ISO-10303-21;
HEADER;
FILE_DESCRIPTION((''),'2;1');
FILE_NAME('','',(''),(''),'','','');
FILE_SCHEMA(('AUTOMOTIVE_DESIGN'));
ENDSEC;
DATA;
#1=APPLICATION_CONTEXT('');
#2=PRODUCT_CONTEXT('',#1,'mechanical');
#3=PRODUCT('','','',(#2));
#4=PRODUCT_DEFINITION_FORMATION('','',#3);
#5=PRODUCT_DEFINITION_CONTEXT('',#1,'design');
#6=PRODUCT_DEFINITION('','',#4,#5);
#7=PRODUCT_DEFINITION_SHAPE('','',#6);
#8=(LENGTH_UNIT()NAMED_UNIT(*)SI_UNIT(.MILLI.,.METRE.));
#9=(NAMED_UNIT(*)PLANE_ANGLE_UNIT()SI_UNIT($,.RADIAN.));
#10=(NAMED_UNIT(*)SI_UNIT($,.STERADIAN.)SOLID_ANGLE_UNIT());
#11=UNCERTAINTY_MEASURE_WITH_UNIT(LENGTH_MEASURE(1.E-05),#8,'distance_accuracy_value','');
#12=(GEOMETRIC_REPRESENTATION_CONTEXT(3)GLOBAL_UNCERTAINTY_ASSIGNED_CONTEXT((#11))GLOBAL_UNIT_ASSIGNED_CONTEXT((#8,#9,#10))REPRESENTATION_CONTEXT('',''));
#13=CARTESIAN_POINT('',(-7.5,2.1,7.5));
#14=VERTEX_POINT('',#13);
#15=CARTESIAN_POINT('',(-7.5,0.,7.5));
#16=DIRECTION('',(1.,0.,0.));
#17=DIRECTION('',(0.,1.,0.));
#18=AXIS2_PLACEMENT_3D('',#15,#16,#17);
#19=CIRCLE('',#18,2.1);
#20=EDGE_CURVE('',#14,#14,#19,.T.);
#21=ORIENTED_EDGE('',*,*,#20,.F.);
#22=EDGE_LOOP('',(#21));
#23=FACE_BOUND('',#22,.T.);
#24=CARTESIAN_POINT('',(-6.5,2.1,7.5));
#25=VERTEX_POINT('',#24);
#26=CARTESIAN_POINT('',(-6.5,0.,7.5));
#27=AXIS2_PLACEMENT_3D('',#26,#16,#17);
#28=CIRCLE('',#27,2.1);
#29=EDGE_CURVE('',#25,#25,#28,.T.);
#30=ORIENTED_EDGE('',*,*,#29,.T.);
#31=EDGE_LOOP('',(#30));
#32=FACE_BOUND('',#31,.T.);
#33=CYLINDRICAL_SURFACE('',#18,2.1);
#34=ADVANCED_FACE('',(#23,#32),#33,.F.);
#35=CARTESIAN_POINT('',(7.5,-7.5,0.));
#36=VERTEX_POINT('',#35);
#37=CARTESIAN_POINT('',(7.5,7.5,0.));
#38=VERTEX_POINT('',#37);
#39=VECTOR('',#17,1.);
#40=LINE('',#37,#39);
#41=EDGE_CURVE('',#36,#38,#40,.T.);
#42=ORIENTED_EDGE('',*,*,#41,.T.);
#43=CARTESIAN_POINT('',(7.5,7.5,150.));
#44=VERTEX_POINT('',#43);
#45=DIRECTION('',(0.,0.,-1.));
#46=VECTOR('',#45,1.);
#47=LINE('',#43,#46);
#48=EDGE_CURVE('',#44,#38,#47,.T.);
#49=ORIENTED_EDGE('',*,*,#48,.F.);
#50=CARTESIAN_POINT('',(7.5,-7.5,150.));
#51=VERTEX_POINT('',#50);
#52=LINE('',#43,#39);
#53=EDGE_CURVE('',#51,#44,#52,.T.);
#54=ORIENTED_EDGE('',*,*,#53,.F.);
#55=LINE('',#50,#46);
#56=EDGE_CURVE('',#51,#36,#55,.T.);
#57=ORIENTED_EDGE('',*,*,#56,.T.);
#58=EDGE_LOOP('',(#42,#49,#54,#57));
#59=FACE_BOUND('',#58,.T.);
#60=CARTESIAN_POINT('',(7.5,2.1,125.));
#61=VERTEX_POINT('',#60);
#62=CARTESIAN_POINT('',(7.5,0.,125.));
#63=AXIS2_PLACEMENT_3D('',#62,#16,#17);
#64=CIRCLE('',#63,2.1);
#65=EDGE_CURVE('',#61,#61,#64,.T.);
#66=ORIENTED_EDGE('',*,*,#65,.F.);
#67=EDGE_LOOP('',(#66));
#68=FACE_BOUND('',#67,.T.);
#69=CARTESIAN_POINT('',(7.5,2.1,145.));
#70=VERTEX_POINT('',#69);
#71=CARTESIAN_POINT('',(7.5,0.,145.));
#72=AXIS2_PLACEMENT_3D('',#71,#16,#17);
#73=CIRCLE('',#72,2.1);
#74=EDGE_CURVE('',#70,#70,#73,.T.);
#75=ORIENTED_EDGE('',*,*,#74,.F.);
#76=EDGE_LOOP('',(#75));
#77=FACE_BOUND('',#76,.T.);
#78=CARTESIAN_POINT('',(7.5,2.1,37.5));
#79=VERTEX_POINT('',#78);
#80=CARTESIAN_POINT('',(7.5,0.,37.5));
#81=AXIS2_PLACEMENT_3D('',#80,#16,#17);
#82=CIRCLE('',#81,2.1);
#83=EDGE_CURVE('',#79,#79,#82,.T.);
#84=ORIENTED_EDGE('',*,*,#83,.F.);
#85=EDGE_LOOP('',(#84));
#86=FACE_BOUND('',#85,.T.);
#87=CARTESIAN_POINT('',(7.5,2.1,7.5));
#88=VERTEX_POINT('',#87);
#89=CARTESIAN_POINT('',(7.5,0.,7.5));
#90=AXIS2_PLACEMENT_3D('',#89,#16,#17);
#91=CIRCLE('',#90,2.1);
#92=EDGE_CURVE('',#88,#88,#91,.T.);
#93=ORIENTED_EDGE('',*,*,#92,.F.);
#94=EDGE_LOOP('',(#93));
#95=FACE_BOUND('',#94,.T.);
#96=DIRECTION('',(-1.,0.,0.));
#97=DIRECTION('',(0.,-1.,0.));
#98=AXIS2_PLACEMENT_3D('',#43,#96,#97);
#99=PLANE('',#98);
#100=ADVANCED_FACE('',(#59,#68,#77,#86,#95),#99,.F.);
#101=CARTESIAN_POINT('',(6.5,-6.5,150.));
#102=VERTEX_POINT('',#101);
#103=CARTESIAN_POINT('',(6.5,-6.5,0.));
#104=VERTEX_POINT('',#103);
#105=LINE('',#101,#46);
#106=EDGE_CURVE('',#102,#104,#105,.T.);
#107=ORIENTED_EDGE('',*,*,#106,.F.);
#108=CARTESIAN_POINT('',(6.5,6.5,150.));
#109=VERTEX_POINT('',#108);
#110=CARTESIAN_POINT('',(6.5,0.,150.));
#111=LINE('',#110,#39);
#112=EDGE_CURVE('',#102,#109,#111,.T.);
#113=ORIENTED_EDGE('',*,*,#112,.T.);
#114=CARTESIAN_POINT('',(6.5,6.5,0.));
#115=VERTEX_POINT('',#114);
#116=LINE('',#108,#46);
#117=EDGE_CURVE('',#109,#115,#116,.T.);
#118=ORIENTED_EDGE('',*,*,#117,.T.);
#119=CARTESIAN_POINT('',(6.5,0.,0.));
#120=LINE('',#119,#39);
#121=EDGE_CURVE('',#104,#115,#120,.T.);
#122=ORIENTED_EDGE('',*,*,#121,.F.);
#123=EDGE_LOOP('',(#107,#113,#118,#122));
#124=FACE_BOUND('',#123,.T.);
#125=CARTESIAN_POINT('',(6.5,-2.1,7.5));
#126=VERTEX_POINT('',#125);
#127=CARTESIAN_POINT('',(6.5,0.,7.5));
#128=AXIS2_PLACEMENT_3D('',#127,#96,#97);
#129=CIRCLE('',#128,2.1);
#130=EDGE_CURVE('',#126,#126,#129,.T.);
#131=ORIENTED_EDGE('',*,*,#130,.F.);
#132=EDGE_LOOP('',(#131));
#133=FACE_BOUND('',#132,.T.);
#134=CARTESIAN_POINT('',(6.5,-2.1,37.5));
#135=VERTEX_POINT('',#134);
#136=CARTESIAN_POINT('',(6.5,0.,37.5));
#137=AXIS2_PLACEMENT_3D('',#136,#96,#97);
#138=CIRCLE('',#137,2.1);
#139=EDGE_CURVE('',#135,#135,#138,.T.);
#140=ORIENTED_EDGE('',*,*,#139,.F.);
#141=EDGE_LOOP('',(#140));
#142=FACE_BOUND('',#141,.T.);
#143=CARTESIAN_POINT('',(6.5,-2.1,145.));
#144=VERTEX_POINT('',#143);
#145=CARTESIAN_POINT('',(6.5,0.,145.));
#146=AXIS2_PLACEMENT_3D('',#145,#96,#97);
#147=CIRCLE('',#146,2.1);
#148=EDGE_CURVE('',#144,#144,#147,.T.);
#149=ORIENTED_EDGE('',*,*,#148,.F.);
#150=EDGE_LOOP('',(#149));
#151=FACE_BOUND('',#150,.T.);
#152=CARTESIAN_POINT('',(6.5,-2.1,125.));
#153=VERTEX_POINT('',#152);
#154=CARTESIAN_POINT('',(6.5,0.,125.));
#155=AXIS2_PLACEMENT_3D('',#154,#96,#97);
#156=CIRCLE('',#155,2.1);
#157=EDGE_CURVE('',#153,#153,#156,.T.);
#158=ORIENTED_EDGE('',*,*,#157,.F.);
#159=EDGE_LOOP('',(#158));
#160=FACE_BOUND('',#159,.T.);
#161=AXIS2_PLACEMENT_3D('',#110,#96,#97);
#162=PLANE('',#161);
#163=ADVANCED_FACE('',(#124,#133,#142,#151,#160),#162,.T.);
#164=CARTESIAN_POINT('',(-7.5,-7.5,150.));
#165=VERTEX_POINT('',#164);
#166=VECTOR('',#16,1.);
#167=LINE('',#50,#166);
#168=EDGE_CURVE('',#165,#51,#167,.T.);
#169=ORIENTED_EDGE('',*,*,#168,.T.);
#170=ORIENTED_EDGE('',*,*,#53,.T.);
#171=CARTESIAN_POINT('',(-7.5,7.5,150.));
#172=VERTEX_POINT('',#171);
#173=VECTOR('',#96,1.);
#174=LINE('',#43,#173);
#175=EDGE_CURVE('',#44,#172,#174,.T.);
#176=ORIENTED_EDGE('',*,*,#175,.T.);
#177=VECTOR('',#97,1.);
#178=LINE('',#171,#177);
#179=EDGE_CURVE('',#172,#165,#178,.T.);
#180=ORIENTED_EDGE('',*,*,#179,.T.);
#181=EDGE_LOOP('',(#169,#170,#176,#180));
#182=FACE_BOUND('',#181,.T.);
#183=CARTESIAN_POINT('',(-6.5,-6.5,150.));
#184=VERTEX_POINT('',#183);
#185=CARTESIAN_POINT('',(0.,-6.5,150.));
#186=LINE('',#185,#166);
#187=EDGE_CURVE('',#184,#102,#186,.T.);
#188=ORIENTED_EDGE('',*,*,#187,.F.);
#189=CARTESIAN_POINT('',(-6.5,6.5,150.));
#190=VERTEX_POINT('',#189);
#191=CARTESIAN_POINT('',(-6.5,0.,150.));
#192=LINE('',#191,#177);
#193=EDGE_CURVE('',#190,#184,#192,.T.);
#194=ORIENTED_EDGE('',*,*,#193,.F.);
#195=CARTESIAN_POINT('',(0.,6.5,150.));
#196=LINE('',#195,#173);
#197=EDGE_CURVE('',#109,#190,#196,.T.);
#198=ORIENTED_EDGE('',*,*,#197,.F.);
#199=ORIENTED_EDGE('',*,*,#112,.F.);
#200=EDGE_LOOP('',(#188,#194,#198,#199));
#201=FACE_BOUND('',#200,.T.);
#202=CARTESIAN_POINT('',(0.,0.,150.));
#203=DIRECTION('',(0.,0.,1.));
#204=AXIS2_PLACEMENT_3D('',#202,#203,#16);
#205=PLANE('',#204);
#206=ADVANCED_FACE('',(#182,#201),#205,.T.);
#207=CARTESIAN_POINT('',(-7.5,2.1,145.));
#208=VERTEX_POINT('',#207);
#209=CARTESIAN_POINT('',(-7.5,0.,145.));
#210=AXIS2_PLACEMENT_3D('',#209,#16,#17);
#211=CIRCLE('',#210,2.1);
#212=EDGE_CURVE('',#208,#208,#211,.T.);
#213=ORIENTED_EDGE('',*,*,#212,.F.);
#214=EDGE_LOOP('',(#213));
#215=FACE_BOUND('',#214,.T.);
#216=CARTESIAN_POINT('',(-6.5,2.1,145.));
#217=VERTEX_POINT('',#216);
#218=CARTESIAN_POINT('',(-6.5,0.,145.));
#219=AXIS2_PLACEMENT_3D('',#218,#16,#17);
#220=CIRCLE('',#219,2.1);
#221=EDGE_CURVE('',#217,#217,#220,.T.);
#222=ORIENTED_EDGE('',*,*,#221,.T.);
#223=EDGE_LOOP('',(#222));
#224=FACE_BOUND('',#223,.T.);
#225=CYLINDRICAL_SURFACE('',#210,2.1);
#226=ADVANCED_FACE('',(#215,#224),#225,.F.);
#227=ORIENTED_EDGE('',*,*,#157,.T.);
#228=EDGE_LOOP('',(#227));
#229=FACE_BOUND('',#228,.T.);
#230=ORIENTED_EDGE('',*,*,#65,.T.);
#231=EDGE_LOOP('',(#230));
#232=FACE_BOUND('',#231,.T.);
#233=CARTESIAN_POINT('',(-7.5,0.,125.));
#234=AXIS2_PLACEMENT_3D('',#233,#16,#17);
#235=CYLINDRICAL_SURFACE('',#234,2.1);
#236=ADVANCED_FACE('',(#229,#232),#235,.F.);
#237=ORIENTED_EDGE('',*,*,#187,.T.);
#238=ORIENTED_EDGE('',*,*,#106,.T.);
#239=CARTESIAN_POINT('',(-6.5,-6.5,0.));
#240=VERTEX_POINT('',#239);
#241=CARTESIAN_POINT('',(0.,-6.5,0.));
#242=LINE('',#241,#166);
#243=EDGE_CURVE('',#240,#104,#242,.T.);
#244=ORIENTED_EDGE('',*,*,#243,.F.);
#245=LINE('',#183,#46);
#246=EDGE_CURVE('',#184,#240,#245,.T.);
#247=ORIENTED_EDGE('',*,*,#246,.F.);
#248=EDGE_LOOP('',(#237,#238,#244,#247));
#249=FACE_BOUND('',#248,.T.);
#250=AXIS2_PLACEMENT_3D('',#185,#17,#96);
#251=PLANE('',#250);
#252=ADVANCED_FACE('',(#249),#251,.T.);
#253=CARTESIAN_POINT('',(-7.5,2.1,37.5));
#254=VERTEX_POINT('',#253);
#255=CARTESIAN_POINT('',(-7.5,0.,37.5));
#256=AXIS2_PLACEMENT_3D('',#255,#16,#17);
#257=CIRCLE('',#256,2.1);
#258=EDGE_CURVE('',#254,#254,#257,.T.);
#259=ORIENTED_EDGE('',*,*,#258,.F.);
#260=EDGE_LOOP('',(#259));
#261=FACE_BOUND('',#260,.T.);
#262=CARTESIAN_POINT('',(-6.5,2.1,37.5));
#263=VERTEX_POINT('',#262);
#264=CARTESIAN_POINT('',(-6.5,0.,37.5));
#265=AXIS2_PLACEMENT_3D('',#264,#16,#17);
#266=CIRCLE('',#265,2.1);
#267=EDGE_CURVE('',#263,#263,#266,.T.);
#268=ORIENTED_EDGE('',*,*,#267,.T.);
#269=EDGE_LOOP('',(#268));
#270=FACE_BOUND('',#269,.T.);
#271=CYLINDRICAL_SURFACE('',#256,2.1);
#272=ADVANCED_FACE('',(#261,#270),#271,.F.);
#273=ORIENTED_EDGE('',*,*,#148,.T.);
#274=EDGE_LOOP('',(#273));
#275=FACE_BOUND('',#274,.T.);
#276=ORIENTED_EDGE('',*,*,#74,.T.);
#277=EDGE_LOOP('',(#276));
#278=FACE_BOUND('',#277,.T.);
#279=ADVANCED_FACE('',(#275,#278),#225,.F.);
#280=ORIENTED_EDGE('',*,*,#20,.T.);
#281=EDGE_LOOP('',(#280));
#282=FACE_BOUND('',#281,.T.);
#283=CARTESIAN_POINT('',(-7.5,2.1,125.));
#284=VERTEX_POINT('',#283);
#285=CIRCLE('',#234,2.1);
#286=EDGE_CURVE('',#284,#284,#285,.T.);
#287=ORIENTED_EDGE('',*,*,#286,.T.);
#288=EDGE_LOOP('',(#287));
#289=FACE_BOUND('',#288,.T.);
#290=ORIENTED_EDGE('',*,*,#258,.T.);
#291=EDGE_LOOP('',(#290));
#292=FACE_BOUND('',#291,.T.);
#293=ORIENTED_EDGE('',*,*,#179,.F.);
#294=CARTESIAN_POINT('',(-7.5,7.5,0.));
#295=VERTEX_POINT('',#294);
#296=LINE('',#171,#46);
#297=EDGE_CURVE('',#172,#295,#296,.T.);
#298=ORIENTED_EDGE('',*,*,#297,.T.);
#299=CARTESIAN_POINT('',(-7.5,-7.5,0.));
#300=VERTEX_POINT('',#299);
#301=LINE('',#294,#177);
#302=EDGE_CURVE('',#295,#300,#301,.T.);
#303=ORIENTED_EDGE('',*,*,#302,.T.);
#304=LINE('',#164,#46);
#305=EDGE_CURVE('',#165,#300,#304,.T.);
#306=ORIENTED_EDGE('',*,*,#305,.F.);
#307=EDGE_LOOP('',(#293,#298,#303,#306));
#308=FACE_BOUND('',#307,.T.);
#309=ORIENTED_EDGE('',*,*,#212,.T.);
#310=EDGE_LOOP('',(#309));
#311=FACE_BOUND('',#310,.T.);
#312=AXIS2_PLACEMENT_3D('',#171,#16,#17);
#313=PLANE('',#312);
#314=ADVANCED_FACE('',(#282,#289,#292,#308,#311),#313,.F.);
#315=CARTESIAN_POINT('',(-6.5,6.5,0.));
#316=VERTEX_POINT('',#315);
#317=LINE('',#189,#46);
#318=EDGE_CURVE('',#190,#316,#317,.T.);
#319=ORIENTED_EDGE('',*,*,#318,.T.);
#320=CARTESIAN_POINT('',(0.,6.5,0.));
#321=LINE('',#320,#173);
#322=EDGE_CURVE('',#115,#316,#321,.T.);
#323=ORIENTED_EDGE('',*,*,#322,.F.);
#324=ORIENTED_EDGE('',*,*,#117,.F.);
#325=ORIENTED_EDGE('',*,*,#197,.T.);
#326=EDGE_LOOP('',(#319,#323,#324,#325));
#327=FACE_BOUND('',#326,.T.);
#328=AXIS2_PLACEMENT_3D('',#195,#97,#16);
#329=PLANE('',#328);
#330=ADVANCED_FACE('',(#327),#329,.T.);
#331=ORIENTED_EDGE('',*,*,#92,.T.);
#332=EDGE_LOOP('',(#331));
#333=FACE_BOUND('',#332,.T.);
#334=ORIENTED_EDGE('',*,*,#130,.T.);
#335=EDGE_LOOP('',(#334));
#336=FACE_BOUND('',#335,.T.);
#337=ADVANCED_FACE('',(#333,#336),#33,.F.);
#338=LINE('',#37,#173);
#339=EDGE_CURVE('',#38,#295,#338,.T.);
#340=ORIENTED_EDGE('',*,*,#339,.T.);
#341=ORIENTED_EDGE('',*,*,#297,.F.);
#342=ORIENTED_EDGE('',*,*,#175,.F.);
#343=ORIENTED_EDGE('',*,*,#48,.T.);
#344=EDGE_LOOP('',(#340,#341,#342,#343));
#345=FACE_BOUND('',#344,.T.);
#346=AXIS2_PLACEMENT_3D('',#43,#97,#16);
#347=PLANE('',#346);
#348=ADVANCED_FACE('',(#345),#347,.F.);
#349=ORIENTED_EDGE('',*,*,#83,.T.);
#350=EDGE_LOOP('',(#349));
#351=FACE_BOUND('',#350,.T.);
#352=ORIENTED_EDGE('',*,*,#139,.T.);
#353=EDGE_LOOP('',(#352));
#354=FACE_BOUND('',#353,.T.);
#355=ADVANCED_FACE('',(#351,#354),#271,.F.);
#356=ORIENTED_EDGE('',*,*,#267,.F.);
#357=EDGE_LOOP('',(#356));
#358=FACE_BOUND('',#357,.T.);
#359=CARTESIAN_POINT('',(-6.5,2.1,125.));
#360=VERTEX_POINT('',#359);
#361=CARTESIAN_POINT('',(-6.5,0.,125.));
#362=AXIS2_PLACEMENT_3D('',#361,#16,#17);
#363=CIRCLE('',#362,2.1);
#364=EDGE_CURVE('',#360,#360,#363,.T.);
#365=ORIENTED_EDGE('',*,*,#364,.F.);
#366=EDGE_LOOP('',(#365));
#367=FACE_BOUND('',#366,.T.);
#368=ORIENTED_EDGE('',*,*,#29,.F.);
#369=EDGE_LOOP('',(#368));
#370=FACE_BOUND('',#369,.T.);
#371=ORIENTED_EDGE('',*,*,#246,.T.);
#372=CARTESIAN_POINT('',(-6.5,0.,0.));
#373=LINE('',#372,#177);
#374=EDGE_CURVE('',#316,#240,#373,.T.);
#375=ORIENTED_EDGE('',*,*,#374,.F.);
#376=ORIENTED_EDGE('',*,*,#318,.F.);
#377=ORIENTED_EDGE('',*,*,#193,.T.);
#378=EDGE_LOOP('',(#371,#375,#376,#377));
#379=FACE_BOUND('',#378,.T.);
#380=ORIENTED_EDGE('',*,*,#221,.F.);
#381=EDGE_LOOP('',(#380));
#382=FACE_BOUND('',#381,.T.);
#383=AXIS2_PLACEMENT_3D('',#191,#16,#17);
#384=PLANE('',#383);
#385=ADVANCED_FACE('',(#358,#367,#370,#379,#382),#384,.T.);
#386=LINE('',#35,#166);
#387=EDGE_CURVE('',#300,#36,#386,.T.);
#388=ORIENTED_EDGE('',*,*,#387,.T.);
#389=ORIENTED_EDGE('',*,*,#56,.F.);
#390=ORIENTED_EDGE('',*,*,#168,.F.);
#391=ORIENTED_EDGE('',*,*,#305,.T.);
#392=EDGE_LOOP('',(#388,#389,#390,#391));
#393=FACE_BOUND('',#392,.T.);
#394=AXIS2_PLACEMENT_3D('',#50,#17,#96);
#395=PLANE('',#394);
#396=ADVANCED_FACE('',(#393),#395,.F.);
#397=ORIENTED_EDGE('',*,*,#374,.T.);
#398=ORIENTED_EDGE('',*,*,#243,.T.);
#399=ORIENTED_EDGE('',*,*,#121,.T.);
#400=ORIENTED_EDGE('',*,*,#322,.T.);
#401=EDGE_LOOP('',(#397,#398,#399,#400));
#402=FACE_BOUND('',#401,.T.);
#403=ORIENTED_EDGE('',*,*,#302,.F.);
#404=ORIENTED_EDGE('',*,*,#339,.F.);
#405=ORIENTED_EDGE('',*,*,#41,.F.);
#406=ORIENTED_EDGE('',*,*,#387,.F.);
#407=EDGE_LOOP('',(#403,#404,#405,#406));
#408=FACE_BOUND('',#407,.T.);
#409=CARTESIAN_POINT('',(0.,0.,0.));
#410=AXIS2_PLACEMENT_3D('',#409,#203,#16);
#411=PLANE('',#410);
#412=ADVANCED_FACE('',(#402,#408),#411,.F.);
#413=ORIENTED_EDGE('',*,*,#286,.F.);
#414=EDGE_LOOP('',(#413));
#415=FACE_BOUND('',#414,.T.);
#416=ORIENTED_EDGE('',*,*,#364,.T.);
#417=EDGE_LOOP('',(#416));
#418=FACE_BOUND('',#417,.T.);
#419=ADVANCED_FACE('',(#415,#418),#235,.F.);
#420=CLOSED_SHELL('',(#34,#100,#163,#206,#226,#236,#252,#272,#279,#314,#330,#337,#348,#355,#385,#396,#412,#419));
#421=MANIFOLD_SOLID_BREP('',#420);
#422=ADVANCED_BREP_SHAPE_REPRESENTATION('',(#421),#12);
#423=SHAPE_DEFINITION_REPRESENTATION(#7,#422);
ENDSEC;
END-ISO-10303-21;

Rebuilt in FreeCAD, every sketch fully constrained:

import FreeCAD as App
import Part
import Sketcher
Q = App.Units.Quantity


def add_polygon(sketch, points):
    """Adds a closed chain of lines whose ends are joined by coincident constraints."""
    first, n = sketch.GeometryCount, len(points)
    for a, b in zip(points, points[1:] + points[:1]):
        sketch.addGeometry(Part.LineSegment(App.Vector(*a, 0), App.Vector(*b, 0)), False)
    for i in range(n):
        sketch.addConstraint(Sketcher.Constraint("Coincident", first + i, 2, first + (i + 1) % n, 1))

doc = App.newDocument("Part")
body = doc.addObject("PartDesign::Body", "Body")

# Sketch on XY plane
sketch1 = body.newObject("Sketcher::SketchObject", "Sketch")
sketch1.AttachmentSupport = (doc.getObject("XY_Plane"), [""])
sketch1.MapMode = "FlatFace"
add_polygon(sketch1, [(-8, 8), (-8, -8), (8, -8), (8, 8)])  # lines 0-3
add_polygon(sketch1, [(6, -6), (-6, -6), (-6, 6), (6, 6)])  # lines 4-7
sketch1.addConstraint(Sketcher.Constraint("Vertical", 0))
sketch1.addConstraint(Sketcher.Constraint("Horizontal", 1))
sketch1.addConstraint(Sketcher.Constraint("Vertical", 2))
sketch1.addConstraint(Sketcher.Constraint("Horizontal", 3))
sketch1.addConstraint(Sketcher.Constraint("Horizontal", 4))
sketch1.addConstraint(Sketcher.Constraint("Vertical", 5))
sketch1.addConstraint(Sketcher.Constraint("Horizontal", 6))
sketch1.addConstraint(Sketcher.Constraint("Vertical", 7))
sketch1.addConstraint(Sketcher.Constraint("Symmetric", 0, 2, 2, 2, -1, 1))
sketch1.addConstraint(Sketcher.Constraint("Symmetric", 4, 2, 6, 2, -1, 1))
sketch1.addConstraint(Sketcher.Constraint("Equal", 3, 0))
sketch1.addConstraint(Sketcher.Constraint("Equal", 6, 5))
sketch1.addConstraint(Sketcher.Constraint("DistanceX", 1, 1, 1, 2, Q("15 mm")))
sketch1.addConstraint(Sketcher.Constraint("DistanceX", 4, 2, 4, 1, Q("13 mm")))
pad1 = body.newObject("PartDesign::Pad", "Pad")
pad1.Profile = sketch1
pad1.Length = 150

# Sketch on YZ plane
sketch2 = body.newObject("Sketcher::SketchObject", "Sketch001")
sketch2.AttachmentSupport = (doc.getObject("YZ_Plane"), [""])
sketch2.MapMode = "FlatFace"
sketch2.AttachmentOffset = App.Placement(App.Vector(0, 0, 7.5), App.Rotation())
sketch2.addGeometry(Part.Circle(App.Vector(0, 7.5, 0), App.Vector(0, 0, 1), 2.1), False)
sketch2.addGeometry(Part.Circle(App.Vector(0, 37.5, 0), App.Vector(0, 0, 1), 2.1), False)
sketch2.addConstraint(Sketcher.Constraint("Equal", 0, 1))
sketch2.addConstraint(Sketcher.Constraint("PointOnObject", 0, 3, -2))
sketch2.addConstraint(Sketcher.Constraint("PointOnObject", 1, 3, -2))
sketch2.addConstraint(Sketcher.Constraint("Diameter", 0, Q("4.2 mm")))
sketch2.addConstraint(Sketcher.Constraint("DistanceY", 0, 3, 1, 3, Q("30 mm")))
sketch2.addConstraint(Sketcher.Constraint("DistanceY", -1, 1, 0, 3, Q("7.5 mm")))
pocket1 = body.newObject("PartDesign::Pocket", "Pocket")
pocket1.Profile = sketch2
pocket1.Type = "ThroughAll"

# Sketch on YZ plane
sketch3 = body.newObject("Sketcher::SketchObject", "Sketch002")
sketch3.AttachmentSupport = (doc.getObject("YZ_Plane"), [""])
sketch3.MapMode = "FlatFace"
sketch3.AttachmentOffset = App.Placement(App.Vector(0, 0, 7.5), App.Rotation())
sketch3.addGeometry(Part.Circle(App.Vector(0, 145, 0), App.Vector(0, 0, 1), 2.1), False)
sketch3.addGeometry(Part.Circle(App.Vector(0, 125, 0), App.Vector(0, 0, 1), 2.1), False)
sketch3.addConstraint(Sketcher.Constraint("Equal", 0, 1))
sketch3.addConstraint(Sketcher.Constraint("PointOnObject", 0, 3, -2))
sketch3.addConstraint(Sketcher.Constraint("PointOnObject", 1, 3, -2))
sketch3.addConstraint(Sketcher.Constraint("Diameter", 0, Q("4.2 mm")))
sketch3.addConstraint(Sketcher.Constraint("DistanceY", -1, 1, 0, 3, Q("145 mm")))
sketch3.addConstraint(Sketcher.Constraint("DistanceY", -1, 1, 1, 3, Q("125 mm")))
pocket2 = body.newObject("PartDesign::Pocket", "Pocket001")
pocket2.Profile = sketch3
pocket2.Type = "ThroughAll"

doc.recompute()
